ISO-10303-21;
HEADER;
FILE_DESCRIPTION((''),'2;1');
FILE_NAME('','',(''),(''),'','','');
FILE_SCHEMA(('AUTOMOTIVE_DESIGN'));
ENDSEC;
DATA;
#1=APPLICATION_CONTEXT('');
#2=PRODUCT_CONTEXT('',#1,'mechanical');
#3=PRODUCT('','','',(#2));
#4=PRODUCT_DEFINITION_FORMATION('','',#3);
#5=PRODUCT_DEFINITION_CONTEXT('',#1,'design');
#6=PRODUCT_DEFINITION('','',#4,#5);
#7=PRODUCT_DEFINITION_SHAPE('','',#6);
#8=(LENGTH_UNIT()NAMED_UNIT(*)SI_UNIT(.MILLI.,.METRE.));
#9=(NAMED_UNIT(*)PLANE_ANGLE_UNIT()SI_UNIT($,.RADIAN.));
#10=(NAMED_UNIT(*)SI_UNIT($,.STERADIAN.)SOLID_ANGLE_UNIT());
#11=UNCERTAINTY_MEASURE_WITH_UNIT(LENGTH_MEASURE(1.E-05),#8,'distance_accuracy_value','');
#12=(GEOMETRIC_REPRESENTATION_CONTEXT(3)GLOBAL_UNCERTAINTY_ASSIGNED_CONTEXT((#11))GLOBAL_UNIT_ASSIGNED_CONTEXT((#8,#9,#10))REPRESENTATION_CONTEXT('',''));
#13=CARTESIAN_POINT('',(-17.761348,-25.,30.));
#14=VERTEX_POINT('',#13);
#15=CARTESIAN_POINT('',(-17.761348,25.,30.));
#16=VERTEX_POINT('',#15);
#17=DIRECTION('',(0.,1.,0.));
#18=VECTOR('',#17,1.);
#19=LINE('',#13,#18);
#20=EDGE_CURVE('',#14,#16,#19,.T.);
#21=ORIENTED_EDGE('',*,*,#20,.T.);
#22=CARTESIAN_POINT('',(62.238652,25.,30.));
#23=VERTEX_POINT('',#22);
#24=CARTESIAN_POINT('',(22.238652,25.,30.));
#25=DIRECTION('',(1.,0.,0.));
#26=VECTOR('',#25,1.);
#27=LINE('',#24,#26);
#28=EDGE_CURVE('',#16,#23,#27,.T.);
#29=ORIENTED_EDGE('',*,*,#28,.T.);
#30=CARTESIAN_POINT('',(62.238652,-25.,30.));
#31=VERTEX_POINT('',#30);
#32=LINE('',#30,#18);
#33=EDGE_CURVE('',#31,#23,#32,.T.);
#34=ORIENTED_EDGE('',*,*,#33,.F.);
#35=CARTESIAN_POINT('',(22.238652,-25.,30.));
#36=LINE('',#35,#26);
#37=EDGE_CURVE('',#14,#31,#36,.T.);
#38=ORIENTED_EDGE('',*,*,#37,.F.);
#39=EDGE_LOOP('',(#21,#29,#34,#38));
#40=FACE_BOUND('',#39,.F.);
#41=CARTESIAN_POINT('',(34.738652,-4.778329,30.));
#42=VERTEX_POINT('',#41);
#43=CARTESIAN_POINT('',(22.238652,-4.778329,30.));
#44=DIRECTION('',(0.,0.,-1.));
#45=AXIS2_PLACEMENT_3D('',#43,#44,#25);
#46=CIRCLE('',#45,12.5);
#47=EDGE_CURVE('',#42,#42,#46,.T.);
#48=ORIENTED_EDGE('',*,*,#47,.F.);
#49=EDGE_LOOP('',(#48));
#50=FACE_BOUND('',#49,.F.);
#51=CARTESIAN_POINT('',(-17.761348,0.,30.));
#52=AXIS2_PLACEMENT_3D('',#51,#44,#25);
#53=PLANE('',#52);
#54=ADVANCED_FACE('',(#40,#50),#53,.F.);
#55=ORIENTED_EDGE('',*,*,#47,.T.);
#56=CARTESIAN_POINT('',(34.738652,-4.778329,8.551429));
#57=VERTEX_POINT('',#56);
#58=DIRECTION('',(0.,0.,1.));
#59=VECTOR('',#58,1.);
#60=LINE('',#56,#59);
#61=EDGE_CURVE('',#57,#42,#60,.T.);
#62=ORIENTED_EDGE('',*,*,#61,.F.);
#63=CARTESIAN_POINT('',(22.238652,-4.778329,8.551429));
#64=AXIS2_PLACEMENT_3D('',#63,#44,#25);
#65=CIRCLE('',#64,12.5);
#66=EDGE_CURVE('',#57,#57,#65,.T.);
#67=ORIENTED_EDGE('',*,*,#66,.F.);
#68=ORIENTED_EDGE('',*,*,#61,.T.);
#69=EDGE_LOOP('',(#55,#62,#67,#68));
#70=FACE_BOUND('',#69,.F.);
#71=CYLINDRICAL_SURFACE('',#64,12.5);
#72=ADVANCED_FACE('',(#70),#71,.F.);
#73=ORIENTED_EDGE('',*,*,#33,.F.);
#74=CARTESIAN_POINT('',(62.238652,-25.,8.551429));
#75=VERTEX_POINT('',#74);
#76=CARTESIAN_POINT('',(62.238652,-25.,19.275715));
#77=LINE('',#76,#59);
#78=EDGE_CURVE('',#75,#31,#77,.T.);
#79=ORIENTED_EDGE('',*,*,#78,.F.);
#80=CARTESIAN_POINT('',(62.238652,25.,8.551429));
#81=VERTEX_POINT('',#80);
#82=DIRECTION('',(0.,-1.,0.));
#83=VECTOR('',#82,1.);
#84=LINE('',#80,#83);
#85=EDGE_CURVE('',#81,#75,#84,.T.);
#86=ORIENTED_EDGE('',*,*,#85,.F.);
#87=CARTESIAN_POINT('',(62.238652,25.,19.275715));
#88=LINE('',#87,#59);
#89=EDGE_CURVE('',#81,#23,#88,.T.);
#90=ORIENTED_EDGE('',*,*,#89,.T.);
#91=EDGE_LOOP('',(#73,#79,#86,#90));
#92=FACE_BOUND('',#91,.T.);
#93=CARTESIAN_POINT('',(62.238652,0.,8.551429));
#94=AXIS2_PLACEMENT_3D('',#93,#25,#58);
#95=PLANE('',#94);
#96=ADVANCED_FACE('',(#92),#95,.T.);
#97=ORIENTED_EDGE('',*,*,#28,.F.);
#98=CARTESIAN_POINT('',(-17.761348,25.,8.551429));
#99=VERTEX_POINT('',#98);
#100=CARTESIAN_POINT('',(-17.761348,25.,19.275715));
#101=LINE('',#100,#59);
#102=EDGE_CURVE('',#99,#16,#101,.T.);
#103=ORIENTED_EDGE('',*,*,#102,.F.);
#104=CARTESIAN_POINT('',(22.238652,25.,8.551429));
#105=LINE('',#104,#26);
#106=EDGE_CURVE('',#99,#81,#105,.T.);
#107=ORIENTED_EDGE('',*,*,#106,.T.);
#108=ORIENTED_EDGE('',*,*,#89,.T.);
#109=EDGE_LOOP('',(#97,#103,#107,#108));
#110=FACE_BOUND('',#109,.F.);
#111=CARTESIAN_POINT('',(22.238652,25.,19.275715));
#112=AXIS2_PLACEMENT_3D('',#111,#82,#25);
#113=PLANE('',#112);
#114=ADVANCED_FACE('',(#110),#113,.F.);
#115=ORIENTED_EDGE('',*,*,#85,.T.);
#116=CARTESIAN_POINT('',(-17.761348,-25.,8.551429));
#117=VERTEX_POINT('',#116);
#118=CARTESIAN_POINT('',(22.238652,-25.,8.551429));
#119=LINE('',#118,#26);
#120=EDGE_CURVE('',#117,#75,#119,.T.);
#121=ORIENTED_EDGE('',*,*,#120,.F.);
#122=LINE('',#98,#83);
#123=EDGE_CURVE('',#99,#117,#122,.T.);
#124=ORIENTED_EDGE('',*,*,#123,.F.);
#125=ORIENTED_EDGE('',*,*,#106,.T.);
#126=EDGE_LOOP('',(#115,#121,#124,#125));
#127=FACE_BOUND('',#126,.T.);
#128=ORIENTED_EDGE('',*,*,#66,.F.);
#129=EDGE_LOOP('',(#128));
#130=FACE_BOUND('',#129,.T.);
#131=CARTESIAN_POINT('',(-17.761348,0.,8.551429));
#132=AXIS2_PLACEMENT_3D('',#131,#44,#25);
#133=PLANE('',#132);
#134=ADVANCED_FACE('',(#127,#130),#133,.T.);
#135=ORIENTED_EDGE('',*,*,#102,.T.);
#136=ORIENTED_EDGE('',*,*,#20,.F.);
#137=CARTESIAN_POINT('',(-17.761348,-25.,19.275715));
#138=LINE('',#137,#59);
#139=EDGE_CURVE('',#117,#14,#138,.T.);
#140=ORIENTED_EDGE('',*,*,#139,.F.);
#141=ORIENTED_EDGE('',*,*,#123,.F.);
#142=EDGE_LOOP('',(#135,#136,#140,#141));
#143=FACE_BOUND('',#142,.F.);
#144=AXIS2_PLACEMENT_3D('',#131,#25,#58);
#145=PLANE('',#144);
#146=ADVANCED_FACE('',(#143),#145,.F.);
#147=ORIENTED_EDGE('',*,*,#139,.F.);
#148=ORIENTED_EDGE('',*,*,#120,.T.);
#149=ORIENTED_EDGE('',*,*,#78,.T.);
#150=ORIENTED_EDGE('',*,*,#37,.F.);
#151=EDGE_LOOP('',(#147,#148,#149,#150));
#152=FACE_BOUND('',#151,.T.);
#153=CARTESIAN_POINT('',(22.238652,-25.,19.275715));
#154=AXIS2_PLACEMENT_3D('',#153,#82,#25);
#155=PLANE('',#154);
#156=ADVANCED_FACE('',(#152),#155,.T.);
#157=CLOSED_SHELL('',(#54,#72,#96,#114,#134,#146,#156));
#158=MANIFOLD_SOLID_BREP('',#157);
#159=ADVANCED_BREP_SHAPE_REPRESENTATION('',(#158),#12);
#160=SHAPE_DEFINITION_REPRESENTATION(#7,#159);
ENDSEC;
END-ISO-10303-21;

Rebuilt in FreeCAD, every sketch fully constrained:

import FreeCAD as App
import Part
import Sketcher
from FreeCAD import Vector
Q = App.Units.Quantity

doc = App.newDocument("Part")
body = doc.addObject("PartDesign::Body", "Body")

sketch1 = body.newObject("Sketcher::SketchObject", "Sketch")
sketch1.AttachmentSupport = (doc.getObject("XZ_Plane"), [""])
sketch1.MapMode = "FlatFace"
sketch1.addGeometry(Part.LineSegment(Vector(-18, 30, 0), Vector(-18, 9, 0)), False)
sketch1.addGeometry(Part.LineSegment(Vector(-18, 9, 0), Vector(62, 9, 0)), False)
sketch1.addGeometry(Part.LineSegment(Vector(62, 9, 0), Vector(62, 30, 0)), False)
sketch1.addGeometry(Part.LineSegment(Vector(62, 30, 0), Vector(-18, 30, 0)), False)
sketch1.addConstraint(Sketcher.Constraint("Coincident", 0, 2, 1, 1))
sketch1.addConstraint(Sketcher.Constraint("Coincident", 1, 2, 2, 1))
sketch1.addConstraint(Sketcher.Constraint("Coincident", 2, 2, 3, 1))
sketch1.addConstraint(Sketcher.Constraint("Coincident", 3, 2, 0, 1))
sketch1.addConstraint(Sketcher.Constraint("Vertical", 0))
sketch1.addConstraint(Sketcher.Constraint("Horizontal", 1))
sketch1.addConstraint(Sketcher.Constraint("Vertical", 2))
sketch1.addConstraint(Sketcher.Constraint("Horizontal", 3))
sketch1.addConstraint(Sketcher.Constraint("DistanceX", 1, 1, 1, 2, Q("80 mm")))
sketch1.addConstraint(Sketcher.Constraint("DistanceY", -1, 1, 2, 2, Q("30 mm")))
sketch1.addConstraint(Sketcher.Constraint("DistanceY", 0, 2, 0, 1, Q("21.448571 mm")))
sketch1.addConstraint(Sketcher.Constraint("DistanceX", 0, 2, -1, 1, Q("17.761348 mm")))
pad1 = body.newObject("PartDesign::Pad", "Pad")
pad1.Profile = sketch1
pad1.Length = 50
pad1.Midplane = True

sketch2 = body.newObject("Sketcher::SketchObject", "Sketch001")
sketch2.AttachmentSupport = (doc.getObject("XY_Plane"), [""])
sketch2.MapMode = "FlatFace"
sketch2.AttachmentOffset = App.Placement(Vector(0, 0, 8.551429), App.Rotation())
sketch2.addGeometry(Part.Circle(Vector(22, -5, 0), Vector(0, 0, 1), 12), False)
sketch2.addConstraint(Sketcher.Constraint("Diameter", 0, Q("25 mm")))
sketch2.addConstraint(Sketcher.Constraint("DistanceX", -1, 1, 0, 3, Q("22.238652 mm")))
sketch2.addConstraint(Sketcher.Constraint("DistanceY", 0, 3, -1, 1, Q("4.778329 mm")))
pocket1 = body.newObject("PartDesign::Pocket", "Pocket")
pocket1.Profile = sketch2
pocket1.Type = "ThroughAll"
pocket1.Reversed = True

doc.recompute()
